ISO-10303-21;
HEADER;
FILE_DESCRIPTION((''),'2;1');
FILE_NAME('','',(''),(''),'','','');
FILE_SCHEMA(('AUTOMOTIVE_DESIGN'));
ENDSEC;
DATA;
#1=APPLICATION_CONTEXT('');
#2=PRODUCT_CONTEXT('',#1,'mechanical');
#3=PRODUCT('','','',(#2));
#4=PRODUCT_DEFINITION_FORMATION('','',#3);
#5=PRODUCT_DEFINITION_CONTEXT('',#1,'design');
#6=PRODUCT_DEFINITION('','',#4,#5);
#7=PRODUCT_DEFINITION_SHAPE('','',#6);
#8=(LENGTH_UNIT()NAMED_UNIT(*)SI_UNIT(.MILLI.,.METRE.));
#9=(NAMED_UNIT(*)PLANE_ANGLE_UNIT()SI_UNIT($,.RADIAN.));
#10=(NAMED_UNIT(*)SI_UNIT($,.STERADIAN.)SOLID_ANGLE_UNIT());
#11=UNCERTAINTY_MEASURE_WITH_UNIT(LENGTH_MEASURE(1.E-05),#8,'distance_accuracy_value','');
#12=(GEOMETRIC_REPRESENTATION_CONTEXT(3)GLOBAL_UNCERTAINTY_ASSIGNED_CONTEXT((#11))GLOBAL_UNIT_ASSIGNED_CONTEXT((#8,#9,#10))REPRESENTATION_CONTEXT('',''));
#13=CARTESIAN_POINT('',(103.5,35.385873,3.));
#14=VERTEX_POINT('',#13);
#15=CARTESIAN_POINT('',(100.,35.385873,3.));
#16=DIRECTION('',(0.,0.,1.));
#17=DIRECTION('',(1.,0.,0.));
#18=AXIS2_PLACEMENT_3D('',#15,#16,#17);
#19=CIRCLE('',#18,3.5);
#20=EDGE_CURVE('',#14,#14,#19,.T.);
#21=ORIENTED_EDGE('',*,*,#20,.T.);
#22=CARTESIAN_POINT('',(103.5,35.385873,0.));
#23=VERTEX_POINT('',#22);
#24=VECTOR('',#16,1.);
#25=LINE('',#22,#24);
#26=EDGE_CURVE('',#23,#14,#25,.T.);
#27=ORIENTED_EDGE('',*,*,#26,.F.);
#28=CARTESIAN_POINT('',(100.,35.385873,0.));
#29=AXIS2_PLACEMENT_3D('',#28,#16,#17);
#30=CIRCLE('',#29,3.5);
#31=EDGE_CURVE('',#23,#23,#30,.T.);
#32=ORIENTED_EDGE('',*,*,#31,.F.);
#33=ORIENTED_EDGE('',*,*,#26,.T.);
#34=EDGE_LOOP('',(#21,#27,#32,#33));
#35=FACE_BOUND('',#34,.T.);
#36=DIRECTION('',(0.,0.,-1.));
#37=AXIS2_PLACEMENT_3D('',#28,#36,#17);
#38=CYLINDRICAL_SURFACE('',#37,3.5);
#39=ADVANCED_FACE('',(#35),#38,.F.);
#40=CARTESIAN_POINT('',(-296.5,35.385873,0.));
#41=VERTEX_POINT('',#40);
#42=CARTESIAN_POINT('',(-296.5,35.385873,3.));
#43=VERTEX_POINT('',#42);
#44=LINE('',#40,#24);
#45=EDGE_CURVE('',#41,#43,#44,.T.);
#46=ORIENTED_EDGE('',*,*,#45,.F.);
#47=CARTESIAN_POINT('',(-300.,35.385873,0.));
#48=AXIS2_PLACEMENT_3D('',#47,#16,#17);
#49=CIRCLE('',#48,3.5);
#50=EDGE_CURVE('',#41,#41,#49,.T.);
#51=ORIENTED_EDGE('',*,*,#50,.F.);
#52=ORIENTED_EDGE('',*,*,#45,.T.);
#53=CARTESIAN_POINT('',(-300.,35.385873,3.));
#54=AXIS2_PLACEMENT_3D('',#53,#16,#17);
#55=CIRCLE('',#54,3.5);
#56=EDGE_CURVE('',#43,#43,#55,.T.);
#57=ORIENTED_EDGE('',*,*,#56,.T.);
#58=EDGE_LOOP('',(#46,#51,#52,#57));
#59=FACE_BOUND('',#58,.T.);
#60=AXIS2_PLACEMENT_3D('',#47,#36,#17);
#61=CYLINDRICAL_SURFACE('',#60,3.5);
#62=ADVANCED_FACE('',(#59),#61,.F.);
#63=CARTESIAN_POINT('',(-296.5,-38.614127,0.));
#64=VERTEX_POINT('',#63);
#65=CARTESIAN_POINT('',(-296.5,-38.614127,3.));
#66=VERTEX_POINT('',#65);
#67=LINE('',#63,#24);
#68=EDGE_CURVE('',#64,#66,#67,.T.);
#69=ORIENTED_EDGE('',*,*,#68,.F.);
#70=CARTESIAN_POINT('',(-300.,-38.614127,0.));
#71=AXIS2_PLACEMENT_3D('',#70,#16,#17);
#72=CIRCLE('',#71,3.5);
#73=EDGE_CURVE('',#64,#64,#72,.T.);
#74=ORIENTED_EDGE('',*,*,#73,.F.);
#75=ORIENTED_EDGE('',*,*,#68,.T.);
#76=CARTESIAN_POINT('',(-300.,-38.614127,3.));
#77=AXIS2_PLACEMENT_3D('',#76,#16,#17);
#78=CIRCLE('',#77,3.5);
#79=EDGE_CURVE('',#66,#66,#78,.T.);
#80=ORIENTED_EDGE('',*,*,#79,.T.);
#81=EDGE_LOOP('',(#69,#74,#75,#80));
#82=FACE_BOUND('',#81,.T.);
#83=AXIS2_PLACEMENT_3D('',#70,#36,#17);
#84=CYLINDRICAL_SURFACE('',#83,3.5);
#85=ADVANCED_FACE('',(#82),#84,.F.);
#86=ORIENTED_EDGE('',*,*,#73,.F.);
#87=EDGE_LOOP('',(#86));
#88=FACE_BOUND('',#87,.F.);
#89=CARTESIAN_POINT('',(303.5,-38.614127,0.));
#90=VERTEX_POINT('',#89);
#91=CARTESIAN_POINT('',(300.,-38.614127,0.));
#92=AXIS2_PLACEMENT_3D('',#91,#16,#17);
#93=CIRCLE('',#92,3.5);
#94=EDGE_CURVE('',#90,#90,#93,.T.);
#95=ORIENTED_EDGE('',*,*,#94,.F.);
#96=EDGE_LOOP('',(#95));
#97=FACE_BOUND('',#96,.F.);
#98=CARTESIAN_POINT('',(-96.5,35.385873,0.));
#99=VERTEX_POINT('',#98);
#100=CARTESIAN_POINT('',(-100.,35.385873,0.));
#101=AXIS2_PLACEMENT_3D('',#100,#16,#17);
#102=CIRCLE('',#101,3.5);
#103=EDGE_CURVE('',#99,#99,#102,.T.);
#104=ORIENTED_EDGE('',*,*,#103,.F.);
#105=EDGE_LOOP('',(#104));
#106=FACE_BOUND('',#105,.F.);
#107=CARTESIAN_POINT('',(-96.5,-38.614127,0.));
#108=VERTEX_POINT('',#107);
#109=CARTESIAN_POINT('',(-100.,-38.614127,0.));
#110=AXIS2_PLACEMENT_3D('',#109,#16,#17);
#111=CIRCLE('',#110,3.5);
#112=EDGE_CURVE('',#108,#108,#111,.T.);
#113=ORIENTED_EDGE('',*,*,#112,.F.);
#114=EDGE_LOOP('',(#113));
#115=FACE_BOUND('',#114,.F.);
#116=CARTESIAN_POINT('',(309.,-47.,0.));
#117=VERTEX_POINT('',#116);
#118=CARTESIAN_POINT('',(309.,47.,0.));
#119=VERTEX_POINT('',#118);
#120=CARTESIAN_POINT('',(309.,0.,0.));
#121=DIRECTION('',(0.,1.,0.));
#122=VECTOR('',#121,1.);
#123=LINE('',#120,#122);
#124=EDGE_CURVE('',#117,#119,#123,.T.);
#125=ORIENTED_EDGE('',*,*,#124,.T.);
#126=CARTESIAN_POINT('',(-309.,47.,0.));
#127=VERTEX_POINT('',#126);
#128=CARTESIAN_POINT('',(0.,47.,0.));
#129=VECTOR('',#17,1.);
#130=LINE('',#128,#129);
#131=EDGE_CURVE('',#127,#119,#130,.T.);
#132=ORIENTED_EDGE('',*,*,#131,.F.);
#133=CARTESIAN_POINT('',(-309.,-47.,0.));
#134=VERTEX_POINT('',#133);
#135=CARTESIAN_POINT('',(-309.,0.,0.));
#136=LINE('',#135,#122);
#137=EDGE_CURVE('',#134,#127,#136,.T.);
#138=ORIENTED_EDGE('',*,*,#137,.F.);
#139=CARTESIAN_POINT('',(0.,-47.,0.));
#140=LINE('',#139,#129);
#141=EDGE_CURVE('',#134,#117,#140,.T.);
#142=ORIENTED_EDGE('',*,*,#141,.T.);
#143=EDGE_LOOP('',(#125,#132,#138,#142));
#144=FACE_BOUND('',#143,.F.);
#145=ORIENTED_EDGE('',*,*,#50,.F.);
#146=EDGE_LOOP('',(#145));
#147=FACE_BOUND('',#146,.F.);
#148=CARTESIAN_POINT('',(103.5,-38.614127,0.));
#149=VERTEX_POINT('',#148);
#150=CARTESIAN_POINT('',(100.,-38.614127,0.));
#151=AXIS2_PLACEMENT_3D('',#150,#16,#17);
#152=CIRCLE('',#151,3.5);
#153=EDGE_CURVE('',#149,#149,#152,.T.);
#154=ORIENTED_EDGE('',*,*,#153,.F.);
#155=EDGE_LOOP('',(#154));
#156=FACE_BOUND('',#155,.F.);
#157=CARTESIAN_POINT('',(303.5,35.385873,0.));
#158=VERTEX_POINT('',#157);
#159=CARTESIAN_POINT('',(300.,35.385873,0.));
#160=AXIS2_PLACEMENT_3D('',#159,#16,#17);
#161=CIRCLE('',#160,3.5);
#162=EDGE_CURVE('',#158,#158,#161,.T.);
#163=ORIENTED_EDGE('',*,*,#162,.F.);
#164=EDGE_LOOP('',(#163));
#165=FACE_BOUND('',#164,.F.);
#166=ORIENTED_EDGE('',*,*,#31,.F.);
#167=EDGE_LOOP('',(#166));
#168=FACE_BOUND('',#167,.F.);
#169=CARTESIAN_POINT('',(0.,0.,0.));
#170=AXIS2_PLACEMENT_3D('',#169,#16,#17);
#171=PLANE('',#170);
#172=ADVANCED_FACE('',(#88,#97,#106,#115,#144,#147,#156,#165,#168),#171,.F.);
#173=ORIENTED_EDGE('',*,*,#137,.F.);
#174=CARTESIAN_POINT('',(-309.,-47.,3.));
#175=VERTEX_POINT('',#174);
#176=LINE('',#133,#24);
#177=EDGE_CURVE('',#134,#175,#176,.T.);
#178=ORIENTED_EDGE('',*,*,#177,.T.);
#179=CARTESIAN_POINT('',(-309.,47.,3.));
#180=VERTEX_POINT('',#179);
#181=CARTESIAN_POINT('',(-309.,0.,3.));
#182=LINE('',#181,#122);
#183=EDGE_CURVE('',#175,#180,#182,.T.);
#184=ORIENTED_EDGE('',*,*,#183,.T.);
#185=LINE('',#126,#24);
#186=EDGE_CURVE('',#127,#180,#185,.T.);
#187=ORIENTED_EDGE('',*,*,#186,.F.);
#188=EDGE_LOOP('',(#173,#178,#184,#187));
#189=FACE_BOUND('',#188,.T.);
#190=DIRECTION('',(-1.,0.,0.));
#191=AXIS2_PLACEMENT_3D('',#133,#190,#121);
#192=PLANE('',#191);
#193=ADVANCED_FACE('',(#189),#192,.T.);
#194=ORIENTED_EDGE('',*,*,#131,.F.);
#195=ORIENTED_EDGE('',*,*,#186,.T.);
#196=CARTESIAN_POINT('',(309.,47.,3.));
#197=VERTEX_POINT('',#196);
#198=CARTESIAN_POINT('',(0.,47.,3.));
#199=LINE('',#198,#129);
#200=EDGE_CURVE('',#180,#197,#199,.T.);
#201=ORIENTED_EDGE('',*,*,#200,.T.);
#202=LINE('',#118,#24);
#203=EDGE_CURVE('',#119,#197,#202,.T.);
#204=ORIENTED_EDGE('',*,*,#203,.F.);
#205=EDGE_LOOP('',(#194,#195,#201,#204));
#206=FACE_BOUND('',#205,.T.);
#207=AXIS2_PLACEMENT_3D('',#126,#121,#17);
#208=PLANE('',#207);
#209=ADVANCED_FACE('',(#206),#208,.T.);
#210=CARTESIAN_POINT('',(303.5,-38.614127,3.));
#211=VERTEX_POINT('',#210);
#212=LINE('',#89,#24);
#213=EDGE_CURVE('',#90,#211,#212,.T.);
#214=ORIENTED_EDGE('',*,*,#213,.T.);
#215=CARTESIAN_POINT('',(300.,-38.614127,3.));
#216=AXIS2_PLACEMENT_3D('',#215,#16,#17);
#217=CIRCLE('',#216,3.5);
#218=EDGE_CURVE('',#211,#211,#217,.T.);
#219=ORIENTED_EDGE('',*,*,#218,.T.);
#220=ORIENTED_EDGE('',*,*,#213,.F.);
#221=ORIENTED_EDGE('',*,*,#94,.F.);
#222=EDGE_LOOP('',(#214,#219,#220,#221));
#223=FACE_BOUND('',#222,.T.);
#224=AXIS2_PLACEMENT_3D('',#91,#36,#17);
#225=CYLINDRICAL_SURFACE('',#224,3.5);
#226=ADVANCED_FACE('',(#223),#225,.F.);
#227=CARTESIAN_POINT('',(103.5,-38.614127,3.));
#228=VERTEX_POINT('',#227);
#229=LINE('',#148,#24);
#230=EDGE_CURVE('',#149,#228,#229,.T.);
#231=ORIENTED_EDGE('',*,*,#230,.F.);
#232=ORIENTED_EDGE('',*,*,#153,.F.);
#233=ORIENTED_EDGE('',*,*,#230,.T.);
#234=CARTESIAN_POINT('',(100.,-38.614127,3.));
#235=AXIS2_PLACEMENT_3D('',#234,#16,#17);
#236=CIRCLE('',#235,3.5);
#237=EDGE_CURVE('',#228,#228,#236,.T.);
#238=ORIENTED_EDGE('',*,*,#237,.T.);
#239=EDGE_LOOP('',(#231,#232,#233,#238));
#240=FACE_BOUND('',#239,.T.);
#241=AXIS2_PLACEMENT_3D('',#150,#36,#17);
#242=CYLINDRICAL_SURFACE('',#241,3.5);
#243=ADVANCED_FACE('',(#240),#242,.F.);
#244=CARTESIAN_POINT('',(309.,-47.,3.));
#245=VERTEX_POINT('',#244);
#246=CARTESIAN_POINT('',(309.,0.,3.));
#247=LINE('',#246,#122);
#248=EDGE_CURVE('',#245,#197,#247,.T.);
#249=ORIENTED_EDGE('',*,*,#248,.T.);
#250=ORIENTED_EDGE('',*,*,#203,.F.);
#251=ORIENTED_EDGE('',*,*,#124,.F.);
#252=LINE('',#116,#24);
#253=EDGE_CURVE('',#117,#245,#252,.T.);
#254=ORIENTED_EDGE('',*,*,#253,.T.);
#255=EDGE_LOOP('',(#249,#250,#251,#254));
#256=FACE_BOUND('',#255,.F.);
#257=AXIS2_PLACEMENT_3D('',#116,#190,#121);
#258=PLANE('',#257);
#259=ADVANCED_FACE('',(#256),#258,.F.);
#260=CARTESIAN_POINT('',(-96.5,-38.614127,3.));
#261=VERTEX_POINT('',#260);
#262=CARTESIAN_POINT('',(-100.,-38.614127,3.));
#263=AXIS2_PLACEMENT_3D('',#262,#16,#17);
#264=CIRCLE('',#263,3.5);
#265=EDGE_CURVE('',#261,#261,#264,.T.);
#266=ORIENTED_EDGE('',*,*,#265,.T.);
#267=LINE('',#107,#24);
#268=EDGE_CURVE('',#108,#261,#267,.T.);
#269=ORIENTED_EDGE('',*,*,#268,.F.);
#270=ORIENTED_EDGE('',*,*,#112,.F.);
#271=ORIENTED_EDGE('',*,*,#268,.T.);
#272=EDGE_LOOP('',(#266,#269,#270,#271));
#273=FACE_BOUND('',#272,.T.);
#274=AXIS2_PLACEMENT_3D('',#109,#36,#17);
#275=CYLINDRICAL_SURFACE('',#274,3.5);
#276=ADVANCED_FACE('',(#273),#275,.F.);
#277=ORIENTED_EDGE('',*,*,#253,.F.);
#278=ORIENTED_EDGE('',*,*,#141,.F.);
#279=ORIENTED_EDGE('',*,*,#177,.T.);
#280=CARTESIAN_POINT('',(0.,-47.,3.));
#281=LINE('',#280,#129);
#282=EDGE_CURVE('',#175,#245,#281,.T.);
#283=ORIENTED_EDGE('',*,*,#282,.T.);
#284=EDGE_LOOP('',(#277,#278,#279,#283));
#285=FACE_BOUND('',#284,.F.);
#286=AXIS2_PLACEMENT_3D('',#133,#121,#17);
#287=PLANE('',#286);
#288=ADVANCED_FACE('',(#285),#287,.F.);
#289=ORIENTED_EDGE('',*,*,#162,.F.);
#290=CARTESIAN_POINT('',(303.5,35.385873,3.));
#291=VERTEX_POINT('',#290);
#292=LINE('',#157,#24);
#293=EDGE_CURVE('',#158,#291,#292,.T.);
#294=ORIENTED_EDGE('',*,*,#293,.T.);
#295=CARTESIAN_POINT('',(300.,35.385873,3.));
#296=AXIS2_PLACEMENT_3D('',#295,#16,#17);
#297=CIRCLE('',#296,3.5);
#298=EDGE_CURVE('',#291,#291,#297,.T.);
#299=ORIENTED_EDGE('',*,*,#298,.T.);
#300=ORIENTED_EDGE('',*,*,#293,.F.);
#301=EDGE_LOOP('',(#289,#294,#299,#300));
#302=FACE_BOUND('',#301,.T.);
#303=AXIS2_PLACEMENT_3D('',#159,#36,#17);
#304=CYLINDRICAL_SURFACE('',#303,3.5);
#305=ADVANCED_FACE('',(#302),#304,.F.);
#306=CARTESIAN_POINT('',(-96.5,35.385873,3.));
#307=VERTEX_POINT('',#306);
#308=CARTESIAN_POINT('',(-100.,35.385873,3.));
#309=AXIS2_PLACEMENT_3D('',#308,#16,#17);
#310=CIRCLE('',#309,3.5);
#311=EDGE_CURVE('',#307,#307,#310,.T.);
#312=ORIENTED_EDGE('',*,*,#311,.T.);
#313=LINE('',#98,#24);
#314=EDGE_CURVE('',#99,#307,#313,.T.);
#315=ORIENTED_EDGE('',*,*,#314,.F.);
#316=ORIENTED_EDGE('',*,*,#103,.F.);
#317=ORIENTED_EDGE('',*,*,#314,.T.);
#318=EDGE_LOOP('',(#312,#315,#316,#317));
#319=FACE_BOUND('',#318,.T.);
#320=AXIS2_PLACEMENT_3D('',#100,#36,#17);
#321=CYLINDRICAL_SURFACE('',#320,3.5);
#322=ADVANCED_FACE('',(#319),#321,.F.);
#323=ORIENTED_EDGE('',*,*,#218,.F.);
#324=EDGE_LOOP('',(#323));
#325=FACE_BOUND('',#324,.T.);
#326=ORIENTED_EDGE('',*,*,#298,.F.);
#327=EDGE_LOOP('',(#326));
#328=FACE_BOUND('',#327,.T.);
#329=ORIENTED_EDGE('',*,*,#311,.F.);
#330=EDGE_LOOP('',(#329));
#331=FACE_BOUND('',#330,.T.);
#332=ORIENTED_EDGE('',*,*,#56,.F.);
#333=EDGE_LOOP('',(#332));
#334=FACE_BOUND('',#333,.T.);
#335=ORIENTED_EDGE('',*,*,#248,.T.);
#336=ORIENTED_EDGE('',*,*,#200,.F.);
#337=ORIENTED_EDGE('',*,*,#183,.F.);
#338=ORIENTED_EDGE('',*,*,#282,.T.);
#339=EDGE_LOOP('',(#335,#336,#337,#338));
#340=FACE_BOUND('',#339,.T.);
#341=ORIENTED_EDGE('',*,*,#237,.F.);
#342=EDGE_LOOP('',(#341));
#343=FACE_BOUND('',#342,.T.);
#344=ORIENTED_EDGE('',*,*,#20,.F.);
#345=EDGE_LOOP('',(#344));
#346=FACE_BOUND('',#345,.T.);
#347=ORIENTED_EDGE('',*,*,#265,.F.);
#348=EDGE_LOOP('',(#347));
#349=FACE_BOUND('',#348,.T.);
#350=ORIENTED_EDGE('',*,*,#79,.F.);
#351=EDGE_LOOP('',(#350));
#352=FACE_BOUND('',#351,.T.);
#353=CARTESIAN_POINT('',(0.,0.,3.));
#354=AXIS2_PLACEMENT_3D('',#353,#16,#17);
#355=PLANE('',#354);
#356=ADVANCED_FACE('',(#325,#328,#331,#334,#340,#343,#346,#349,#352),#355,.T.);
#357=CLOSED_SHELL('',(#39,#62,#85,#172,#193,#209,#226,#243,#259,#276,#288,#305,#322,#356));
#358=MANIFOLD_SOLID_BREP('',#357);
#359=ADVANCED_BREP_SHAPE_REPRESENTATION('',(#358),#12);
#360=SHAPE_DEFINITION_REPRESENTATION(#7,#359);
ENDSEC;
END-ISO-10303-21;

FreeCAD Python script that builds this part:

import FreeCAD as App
import Part
import Sketcher
from FreeCAD import Vector
Q = App.Units.Quantity

doc = App.newDocument("Part")
params = doc.addObject("Spreadsheet::Sheet", "Params")
for row, (alias, value) in enumerate([
    ("sketch1_diameter", "7 mm"),
    ("sketch1_width", "618 mm"),
    ("sketch1_height", "94 mm"),
    ("pad1_length", "3 mm"),
], start=1):
    params.set(f"A{row}", alias)
    params.set(f"B{row}", "=" + value)
    params.setAlias(f"B{row}", alias)

body = doc.addObject("PartDesign::Body", "Body")

# Sketch on XY plane
sketch1 = doc.addObject("Sketcher::SketchObject", "Sketch")
body.addObject(sketch1)
sketch1.AttachmentSupport = (doc.XY_Plane, [""])
sketch1.MapMode = "FlatFace"
sketch1.addGeometry(Part.LineSegment(Vector(-309, 47, 0), Vector(-309, -47, 0)), False)
sketch1.addGeometry(Part.LineSegment(Vector(-309, -47, 0), Vector(309, -47, 0)), False)
sketch1.addGeometry(Part.LineSegment(Vector(309, -47, 0), Vector(309, 47, 0)), False)
sketch1.addGeometry(Part.LineSegment(Vector(309, 47, 0), Vector(-309, 47, 0)), False)
sketch1.addGeometry(Part.Circle(Vector(-300, -38.6, 0), Vector(0, 0, 1), 3.5), False)
sketch1.addGeometry(Part.Circle(Vector(-100, -38.6, 0), Vector(0, 0, 1), 3.5), False)
sketch1.addGeometry(Part.Circle(Vector(100, -38.6, 0), Vector(0, 0, 1), 3.5), False)
sketch1.addGeometry(Part.Circle(Vector(300, -38.6, 0), Vector(0, 0, 1), 3.5), False)
sketch1.addGeometry(Part.Circle(Vector(-300, 35.4, 0), Vector(0, 0, 1), 3.5), False)
sketch1.addGeometry(Part.Circle(Vector(-100, 35.4, 0), Vector(0, 0, 1), 3.5), False)
sketch1.addGeometry(Part.Circle(Vector(100, 35.4, 0), Vector(0, 0, 1), 3.5), False)
sketch1.addGeometry(Part.Circle(Vector(300, 35.4, 0), Vector(0, 0, 1), 3.5), False)
sketch1.addConstraint(Sketcher.Constraint("Coincident", 0, 2, 1, 1))
sketch1.addConstraint(Sketcher.Constraint("Coincident", 1, 2, 2, 1))
sketch1.addConstraint(Sketcher.Constraint("Coincident", 2, 2, 3, 1))
sketch1.addConstraint(Sketcher.Constraint("Coincident", 3, 2, 0, 1))
sketch1.addConstraint(Sketcher.Constraint("Vertical", 0))
sketch1.addConstraint(Sketcher.Constraint("Horizontal", 1))
sketch1.addConstraint(Sketcher.Constraint("Vertical", 2))
sketch1.addConstraint(Sketcher.Constraint("Horizontal", 3))
sketch1.addConstraint(Sketcher.Constraint("Equal", 4, 5))
sketch1.addConstraint(Sketcher.Constraint("Equal", 5, 6))
sketch1.addConstraint(Sketcher.Constraint("Equal", 6, 7))
sketch1.addConstraint(Sketcher.Constraint("Equal", 7, 8))
sketch1.addConstraint(Sketcher.Constraint("Equal", 8, 9))
sketch1.addConstraint(Sketcher.Constraint("Equal", 9, 10))
sketch1.addConstraint(Sketcher.Constraint("Equal", 10, 11))
sketch1.addConstraint(Sketcher.Constraint("Symmetric", 0, 2, 2, 2, -1, 1))
sketch1.addConstraint(Sketcher.Constraint("Symmetric", 5, 3, 6, 3, -2))
sketch1.addConstraint(Sketcher.Constraint("Symmetric", 4, 3, 7, 3, -2))
sketch1.addConstraint(Sketcher.Constraint("Symmetric", 9, 3, 10, 3, -2))
sketch1.addConstraint(Sketcher.Constraint("Symmetric", 8, 3, 11, 3, -2))
sketch1.addConstraint(Sketcher.Constraint("Horizontal", 4, 3, 5, 3))
sketch1.addConstraint(Sketcher.Constraint("Horizontal", 8, 3, 9, 3))
sketch1.addConstraint(Sketcher.Constraint("Vertical", 4, 3, 8, 3))
sketch1.addConstraint(Sketcher.Constraint("Vertical", 5, 3, 9, 3))
sketch1.addConstraint(Sketcher.Constraint("Diameter", 4, Q("7 mm")))
sketch1.addConstraint(Sketcher.Constraint("DistanceX", 1, 1, 1, 2, Q("618 mm")))
sketch1.addConstraint(Sketcher.Constraint("DistanceY", 0, 2, 0, 1, Q("94 mm")))
sketch1.addConstraint(Sketcher.Constraint("DistanceX", 4, 3, -1, 1, Q("300 mm")))
sketch1.addConstraint(Sketcher.Constraint("DistanceX", 5, 3, -1, 1, Q("100 mm")))
sketch1.addConstraint(Sketcher.Constraint("DistanceY", 4, 3, 8, 3, Q("74 mm")))
sketch1.addConstraint(Sketcher.Constraint("DistanceY", 4, 3, -1, 1, Q("38.614127 mm")))
sketch1.setExpression("Constraints[24]", "Params.sketch1_diameter")
sketch1.setExpression("Constraints[25]", "Params.sketch1_width")
sketch1.setExpression("Constraints[26]", "Params.sketch1_height")
pad1 = doc.addObject("PartDesign::Pad", "Pad")
body.addObject(pad1)
pad1.Profile = sketch1
pad1.setExpression("Length", "Params.pad1_length")

doc.recompute()
